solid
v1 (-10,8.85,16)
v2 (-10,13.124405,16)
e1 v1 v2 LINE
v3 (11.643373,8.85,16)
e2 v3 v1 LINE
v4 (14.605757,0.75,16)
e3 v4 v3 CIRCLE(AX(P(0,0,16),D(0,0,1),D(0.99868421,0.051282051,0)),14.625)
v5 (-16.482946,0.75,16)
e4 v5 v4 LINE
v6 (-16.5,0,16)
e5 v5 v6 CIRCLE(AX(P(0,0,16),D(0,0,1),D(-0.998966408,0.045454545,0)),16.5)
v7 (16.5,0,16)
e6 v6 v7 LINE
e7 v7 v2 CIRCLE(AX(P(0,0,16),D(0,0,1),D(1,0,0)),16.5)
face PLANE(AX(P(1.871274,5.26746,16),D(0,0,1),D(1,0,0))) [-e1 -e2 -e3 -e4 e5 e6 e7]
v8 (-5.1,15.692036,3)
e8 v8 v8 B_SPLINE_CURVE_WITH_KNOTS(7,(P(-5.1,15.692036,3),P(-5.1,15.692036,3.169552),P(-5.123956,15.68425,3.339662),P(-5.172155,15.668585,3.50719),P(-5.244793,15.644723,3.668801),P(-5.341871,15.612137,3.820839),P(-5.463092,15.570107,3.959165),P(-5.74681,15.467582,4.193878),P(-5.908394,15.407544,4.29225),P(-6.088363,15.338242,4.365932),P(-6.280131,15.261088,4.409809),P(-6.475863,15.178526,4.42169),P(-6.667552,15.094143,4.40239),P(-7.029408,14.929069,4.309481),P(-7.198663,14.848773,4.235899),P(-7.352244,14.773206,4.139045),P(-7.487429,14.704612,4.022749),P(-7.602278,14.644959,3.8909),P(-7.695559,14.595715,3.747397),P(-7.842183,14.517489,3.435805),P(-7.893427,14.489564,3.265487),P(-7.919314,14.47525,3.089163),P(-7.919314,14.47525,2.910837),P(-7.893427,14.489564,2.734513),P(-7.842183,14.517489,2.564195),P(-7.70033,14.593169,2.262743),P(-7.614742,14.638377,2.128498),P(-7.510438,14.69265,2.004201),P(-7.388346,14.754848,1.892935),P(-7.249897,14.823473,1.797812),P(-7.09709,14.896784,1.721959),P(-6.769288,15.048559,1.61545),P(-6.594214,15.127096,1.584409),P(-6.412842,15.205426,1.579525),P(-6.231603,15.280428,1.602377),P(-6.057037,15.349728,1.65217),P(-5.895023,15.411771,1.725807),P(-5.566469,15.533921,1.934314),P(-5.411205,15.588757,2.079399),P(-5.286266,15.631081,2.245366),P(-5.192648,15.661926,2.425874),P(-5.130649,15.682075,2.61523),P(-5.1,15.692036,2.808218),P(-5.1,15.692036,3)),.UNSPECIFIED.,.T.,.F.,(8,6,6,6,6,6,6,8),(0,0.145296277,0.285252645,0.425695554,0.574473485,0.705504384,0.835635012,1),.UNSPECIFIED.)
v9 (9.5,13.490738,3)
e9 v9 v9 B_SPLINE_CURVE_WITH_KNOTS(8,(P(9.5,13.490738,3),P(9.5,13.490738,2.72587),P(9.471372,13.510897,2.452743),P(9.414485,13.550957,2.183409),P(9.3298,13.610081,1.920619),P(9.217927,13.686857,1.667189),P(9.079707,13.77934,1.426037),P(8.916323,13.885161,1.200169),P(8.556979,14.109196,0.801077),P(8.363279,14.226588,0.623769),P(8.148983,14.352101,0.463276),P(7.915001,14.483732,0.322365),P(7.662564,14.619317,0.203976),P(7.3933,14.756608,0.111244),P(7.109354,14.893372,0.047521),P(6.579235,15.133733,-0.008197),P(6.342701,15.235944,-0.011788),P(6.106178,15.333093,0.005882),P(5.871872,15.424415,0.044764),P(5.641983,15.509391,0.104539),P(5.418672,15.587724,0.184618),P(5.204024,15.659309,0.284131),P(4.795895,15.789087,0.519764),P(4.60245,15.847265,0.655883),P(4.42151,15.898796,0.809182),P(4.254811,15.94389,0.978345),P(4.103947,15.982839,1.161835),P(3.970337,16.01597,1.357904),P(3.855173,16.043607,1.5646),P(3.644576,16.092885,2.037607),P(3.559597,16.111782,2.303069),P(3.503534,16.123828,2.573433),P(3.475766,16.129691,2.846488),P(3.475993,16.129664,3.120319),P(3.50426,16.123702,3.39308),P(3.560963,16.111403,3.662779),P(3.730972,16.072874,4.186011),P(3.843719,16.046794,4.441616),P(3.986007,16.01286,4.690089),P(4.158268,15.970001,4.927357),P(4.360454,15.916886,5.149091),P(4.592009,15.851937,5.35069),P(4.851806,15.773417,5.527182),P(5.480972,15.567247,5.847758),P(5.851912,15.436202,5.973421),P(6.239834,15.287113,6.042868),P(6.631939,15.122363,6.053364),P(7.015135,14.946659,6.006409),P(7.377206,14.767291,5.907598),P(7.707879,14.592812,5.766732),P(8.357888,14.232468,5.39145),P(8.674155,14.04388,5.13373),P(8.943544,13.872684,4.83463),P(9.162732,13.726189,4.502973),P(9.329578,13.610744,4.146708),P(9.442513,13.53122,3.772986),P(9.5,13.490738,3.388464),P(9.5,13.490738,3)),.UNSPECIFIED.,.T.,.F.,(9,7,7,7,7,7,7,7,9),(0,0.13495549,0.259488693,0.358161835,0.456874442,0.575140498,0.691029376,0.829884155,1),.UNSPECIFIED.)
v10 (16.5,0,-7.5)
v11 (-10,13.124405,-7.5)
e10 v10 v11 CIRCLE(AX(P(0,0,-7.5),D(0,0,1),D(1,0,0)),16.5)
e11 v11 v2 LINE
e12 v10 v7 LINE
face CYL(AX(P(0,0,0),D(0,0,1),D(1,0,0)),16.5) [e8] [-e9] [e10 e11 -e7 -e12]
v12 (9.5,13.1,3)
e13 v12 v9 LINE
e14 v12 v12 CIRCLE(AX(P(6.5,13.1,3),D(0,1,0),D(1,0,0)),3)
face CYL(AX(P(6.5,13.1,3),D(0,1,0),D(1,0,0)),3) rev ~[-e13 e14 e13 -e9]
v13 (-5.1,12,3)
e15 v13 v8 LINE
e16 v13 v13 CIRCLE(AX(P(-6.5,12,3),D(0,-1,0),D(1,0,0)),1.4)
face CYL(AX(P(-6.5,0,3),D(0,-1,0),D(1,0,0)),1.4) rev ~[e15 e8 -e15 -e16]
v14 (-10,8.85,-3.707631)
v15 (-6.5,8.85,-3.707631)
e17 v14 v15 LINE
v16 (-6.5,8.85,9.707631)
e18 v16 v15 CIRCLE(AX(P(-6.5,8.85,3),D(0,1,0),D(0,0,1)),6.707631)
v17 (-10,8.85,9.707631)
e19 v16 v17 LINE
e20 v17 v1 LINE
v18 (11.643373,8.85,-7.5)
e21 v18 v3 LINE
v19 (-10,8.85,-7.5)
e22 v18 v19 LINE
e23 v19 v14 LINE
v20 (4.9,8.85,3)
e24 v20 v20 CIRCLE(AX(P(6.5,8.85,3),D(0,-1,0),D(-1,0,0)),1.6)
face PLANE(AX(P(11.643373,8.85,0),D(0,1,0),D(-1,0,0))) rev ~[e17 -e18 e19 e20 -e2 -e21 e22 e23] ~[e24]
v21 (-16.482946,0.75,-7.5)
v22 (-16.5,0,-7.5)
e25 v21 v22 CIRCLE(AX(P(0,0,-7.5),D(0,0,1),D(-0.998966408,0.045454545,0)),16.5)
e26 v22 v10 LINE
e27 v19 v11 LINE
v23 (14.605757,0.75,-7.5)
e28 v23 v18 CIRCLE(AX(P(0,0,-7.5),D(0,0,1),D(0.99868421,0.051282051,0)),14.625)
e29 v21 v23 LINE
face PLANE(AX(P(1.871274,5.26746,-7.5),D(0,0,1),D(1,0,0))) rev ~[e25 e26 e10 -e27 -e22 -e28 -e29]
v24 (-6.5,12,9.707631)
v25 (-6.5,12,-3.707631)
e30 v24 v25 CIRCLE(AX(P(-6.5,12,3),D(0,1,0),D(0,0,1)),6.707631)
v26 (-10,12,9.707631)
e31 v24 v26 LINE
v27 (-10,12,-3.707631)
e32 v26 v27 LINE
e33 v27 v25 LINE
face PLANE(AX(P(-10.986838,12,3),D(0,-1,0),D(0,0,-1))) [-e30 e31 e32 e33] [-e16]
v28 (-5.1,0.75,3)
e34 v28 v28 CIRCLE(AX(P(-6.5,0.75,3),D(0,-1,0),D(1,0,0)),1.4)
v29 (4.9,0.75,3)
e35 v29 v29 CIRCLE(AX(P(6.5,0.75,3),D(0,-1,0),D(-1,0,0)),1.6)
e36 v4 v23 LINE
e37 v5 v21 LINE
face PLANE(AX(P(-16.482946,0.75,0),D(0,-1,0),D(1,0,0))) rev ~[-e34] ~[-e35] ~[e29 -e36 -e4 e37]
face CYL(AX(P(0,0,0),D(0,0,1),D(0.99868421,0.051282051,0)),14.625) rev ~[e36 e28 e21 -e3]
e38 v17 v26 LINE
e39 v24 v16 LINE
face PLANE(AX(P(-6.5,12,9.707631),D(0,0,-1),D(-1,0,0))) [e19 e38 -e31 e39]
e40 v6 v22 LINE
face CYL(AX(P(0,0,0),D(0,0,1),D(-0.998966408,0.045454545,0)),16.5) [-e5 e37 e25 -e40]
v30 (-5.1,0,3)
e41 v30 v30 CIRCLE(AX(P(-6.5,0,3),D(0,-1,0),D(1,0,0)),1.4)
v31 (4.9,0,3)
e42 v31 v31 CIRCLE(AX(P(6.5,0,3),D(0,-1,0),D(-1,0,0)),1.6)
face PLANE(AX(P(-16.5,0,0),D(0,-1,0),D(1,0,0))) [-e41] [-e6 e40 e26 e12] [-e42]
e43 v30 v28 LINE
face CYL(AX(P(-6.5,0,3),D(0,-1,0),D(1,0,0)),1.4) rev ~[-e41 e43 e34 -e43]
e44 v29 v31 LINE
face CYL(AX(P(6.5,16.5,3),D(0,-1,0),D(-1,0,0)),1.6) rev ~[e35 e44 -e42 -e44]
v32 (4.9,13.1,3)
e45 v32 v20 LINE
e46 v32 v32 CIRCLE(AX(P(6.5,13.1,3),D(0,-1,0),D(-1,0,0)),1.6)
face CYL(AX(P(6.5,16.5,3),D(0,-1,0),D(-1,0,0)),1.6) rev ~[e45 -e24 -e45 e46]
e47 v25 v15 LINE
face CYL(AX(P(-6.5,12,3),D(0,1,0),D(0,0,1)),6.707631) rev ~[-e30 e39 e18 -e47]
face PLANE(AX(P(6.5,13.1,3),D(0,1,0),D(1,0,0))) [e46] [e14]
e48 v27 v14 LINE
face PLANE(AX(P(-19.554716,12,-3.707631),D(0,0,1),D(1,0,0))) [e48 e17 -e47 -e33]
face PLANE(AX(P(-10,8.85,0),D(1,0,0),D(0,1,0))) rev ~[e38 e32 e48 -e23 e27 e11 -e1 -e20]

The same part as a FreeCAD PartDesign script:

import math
import FreeCAD as App
import Part
import Sketcher
from FreeCAD import Vector
Q = App.Units.Quantity

doc = App.newDocument("Part")
body = doc.addObject("PartDesign::Body", "Body")

# Sketch on XY plane
sketch1 = doc.addObject("Sketcher::SketchObject", "Sketch")
body.addObject(sketch1)
sketch1.AttachmentSupport = (doc.XY_Plane, [""])
sketch1.MapMode = "FlatFace"
sketch1.addGeometry([
    Part.LineSegment(Vector(-16.5, 0, 0), Vector(16.5, 0, 0)),  # 0
    Part.ArcOfCircle(Part.Circle(Vector(0, 0, 0), Vector(0, 0, 1), 16.5), math.radians(0), math.radians(127)),  # 1
    Part.LineSegment(Vector(-10, 13.1, 0), Vector(-10, 8.8, 0)),  # 2
    Part.LineSegment(Vector(-10, 8.8, 0), Vector(11.6, 8.8, 0)),  # 3
    Part.ArcOfCircle(Part.Circle(Vector(0, 0, 0), Vector(0, 0, 1), 14.6), math.radians(3), math.radians(37)),  # 4
    Part.LineSegment(Vector(14.6, 0.8, 0), Vector(-16.5, 0.8, 0)),  # 5
    Part.ArcOfCircle(Part.Circle(Vector(0, 0, 0), Vector(0, 0, 1), 16.5), math.radians(177.39), math.radians(180)),  # 6
], False)
sketch1.addConstraint([
    Sketcher.Constraint("Coincident", 0, 2, 1, 1),
    Sketcher.Constraint("Coincident", 1, 2, 2, 1),
    Sketcher.Constraint("Coincident", 2, 2, 3, 1),
    Sketcher.Constraint("Coincident", 3, 2, 4, 2),
    Sketcher.Constraint("Coincident", 4, 1, 5, 1),
    Sketcher.Constraint("Coincident", 5, 2, 6, 1),
    Sketcher.Constraint("Coincident", 6, 2, 0, 1),
    Sketcher.Constraint("Horizontal", 0),
    Sketcher.Constraint("Vertical", 2),
    Sketcher.Constraint("Horizontal", 3),
    Sketcher.Constraint("Horizontal", 5),
    Sketcher.Constraint("Coincident", 1, 3, -1, 1),
    Sketcher.Constraint("Coincident", 4, 3, -1, 1),
    Sketcher.Constraint("Coincident", 6, 3, -1, 1),
    Sketcher.Constraint("Equal", 1, 6),
    Sketcher.Constraint("PointOnObject", 0, 2, -1),
    Sketcher.Constraint("Radius", 1, Q("16.5 mm")),
    Sketcher.Constraint("DistanceX", 1, 2, -1, 1, Q("10 mm")),
    Sketcher.Constraint("Radius", 4, Q("14.625 mm")),
    Sketcher.Constraint("DistanceY", 4, 1, 3, 2, Q("8.1 mm")),
    Sketcher.Constraint("DistanceY", -1, 1, 2, 2, Q("8.85 mm")),
])
pad1 = doc.addObject("PartDesign::Pad", "Pad")
body.addObject(pad1)
pad1.Profile = sketch1
pad1.Type = "TwoLengths"
pad1.Length = 16
pad1.Length2 = 7.5

# Sketch on XZ plane
sketch2 = doc.addObject("Sketcher::SketchObject", "Sketch001")
body.addObject(sketch2)
sketch2.AttachmentSupport = (doc.XZ_Plane, [""])
sketch2.MapMode = "FlatFace"
sketch2.AttachmentOffset = App.Placement(Vector(0, 0, -12), App.Rotation())
sketch2.addGeometry([
    Part.LineSegment(Vector(-20, -4, 0), Vector(-20, 10, 0)),
    Part.LineSegment(Vector(-20, 10, 0), Vector(-6, 10, 0)),
    Part.ArcOfCircle(Part.Circle(Vector(-6, 3, 0), Vector(0, 0, 1), 7), math.radians(-90), math.radians(90)),
    Part.LineSegment(Vector(-6, -4, 0), Vector(-20, -4, 0)),
], False)
sketch2.addConstraint([
    Sketcher.Constraint("Coincident", 0, 2, 1, 1),
    Sketcher.Constraint("Tangent", 1, 2, 2, 2),
    Sketcher.Constraint("Tangent", 2, 1, 3, 1),
    Sketcher.Constraint("Coincident", 3, 2, 0, 1),
    Sketcher.Constraint("Vertical", 0),
    Sketcher.Constraint("Horizontal", 1),
    Sketcher.Constraint("Horizontal", 3),
    Sketcher.Constraint("DistanceY", -1, 1, 2, 3, Q("3 mm")),
    Sketcher.Constraint("DistanceX", 2, 3, -1, 1, Q("6.5 mm")),
    Sketcher.Constraint("Radius", 2, Q("6.707631 mm")),
    Sketcher.Constraint("DistanceX", 1, 1, 1, 2, Q("13.054716 mm")),
])
pocket1 = doc.addObject("PartDesign::Pocket", "Pocket")
body.addObject(pocket1)
pocket1.Profile = sketch2
pocket1.Length = 8
pocket1.Reversed = True

# Sketch on XZ plane
sketch3 = doc.addObject("Sketcher::SketchObject", "Sketch002")
body.addObject(sketch3)
sketch3.AttachmentSupport = (doc.XZ_Plane, [""])
sketch3.MapMode = "FlatFace"
sketch3.AttachmentOffset = App.Placement(Vector(0, 0, -16.5), App.Rotation())
sketch3.addGeometry(Part.Circle(Vector(6.5, 3, 0), Vector(0, 0, 1), 1.6), False)
sketch3.addConstraint([
    Sketcher.Constraint("Diameter", 0, Q("3.2 mm")),
    Sketcher.Constraint("DistanceY", -1, 1, 0, 3, Q("3 mm")),
    Sketcher.Constraint("DistanceX", -1, 1, 0, 3, Q("6.5 mm")),
])
doc.recompute()
hole = doc.addObject("PartDesign::Hole", "Hole")
body.addObject(hole)
hole.Profile = sketch3
hole.ThreadType = "None"
hole.Diameter = 3.2
hole.DepthType = "Dimension"
hole.Depth = 25
hole.DrillPoint = "Flat"
hole.HoleCutType = "Counterbore"
hole.HoleCutDiameter = 6
hole.HoleCutDepth = 3.4
hole.Reversed = True

# Sketch on XZ plane
sketch4 = doc.addObject("Sketcher::SketchObject", "Sketch003")
body.addObject(sketch4)
sketch4.AttachmentSupport = (doc.XZ_Plane, [""])
sketch4.MapMode = "FlatFace"
sketch4.addGeometry(Part.Circle(Vector(-6.5, 3, 0), Vector(0, 0, 1), 1.4), False)
sketch4.addConstraint([
    Sketcher.Constraint("Diameter", 0, Q("2.8 mm")),
    Sketcher.Constraint("DistanceY", -1, 1, 0, 3, Q("3 mm")),
    Sketcher.Constraint("DistanceX", 0, 3, -1, 1, Q("6.5 mm")),
])
pocket2 = doc.addObject("PartDesign::Pocket", "Pocket001")
body.addObject(pocket2)
pocket2.Profile = sketch4
pocket2.Length = 16

doc.recompute()
